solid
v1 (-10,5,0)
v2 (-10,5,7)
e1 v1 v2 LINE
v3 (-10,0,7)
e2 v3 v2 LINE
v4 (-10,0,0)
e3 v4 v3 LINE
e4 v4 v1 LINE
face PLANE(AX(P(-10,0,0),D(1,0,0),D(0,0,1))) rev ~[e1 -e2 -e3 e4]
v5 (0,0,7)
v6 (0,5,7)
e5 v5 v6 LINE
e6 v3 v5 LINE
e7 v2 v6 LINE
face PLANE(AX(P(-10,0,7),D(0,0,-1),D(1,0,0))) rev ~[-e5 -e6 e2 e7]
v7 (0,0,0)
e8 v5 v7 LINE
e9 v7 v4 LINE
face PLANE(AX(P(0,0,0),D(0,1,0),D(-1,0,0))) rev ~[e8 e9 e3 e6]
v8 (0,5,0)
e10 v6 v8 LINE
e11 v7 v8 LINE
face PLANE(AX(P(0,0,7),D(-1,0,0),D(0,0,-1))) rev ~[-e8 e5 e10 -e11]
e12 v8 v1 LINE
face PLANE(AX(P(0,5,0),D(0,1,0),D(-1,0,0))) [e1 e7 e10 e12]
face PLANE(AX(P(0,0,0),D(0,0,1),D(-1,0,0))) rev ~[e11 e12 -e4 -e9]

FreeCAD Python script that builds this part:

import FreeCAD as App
import Part
import Sketcher

V = App.Vector

doc = App.newDocument("Part")
body = doc.addObject("PartDesign::Body", "Body")

# Sketch on XZ plane
sketch1 = body.newObject("Sketcher::SketchObject", "Sketch")
sketch1.AttachmentSupport = (doc.getObject("XZ_Plane"), [""])
sketch1.MapMode = "FlatFace"
sketch1.addGeometry([
    Part.LineSegment(V(0, 7, 0), V(0, 0, 0)),
    Part.LineSegment(V(0, 0, 0), V(-10, 0, 0)),
    Part.LineSegment(V(-10, 0, 0), V(-10, 7, 0)),
    Part.LineSegment(V(-10, 7, 0), V(0, 7, 0)),
], False)
sketch1.addConstraint([
    Sketcher.Constraint("Coincident", 0, 2, 1, 1),
    Sketcher.Constraint("Coincident", 1, 2, 2, 1),
    Sketcher.Constraint("Coincident", 2, 2, 3, 1),
    Sketcher.Constraint("Coincident", 3, 2, 0, 1),
    Sketcher.Constraint("Vertical", 0),
    Sketcher.Constraint("Horizontal", 1),
    Sketcher.Constraint("Vertical", 2),
    Sketcher.Constraint("Horizontal", 3),
    Sketcher.Constraint("Coincident", 0, 2, -1, 1),
    Sketcher.Constraint("DistanceX", 1, 2, 1, 1, 10.0),
    Sketcher.Constraint("DistanceY", 0, 2, 0, 1, 7.0),
])
pad1 = body.newObject("PartDesign::Pad", "Pad")
pad1.Profile = sketch1
pad1.Length = 5
pad1.Reversed = True

doc.recompute()
